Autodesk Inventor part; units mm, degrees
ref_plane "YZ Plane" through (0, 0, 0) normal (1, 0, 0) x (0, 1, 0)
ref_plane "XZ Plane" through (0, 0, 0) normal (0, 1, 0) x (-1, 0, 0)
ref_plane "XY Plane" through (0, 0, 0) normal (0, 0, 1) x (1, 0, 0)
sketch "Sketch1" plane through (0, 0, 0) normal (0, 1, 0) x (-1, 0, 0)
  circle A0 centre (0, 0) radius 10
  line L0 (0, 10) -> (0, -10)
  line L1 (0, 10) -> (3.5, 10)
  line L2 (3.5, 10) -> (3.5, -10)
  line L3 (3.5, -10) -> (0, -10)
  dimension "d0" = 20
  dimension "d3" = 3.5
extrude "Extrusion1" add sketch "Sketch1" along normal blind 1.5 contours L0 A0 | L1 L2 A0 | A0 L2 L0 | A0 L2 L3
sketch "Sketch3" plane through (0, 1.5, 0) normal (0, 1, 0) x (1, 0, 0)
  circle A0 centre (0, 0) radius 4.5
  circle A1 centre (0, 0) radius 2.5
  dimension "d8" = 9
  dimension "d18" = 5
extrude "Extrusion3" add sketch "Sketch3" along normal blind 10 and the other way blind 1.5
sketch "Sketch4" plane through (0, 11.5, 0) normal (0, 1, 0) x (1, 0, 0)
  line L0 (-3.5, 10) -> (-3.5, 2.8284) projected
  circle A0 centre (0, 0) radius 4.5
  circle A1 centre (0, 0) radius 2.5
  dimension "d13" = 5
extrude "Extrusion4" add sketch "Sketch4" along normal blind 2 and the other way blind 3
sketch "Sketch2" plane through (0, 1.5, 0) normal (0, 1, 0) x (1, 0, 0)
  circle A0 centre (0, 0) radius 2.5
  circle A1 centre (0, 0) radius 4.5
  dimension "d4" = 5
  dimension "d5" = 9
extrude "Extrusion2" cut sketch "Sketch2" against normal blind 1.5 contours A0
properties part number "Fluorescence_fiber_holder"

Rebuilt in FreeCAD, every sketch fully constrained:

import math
import FreeCAD as App
import Part
import Sketcher
from FreeCAD import Vector

doc = App.newDocument("Part")
params = doc.addObject("Spreadsheet::Sheet", "Params")
for row, (alias, value) in enumerate([
    ("sketch1_radius", "10 mm"),
    ("sketch1_width", "3.5 mm"),
    ("pad1_length", "1.5 mm"),
    ("sketch2_diameter", "9 mm"),
    ("sketch2_diameter2", "5 mm"),
    ("pad2_length", "10 mm"),
    ("pad2_length2", "1.5 mm"),
    ("sketch3_diameter", "5 mm"),
    ("sketch3_diameter2", "9 mm"),
    ("pad3_length", "2 mm"),
    ("pad3_length2", "3 mm"),
    ("sketch4_diameter", "5 mm"),
    ("pocket1_length", "1.5 mm"),
], start=1):
    params.set(f"A{row}", alias)
    params.set(f"B{row}", "=" + value)
    params.setAlias(f"B{row}", alias)

body = doc.addObject("PartDesign::Body", "Body")

sketch1 = body.newObject("Sketcher::SketchObject", "Sketch")
sketch1.AttachmentSupport = (doc.getObject("XZ_Plane"), [""])
sketch1.MapMode = "FlatFace"
sketch1.addGeometry(Part.ArcOfCircle(Part.Circle(Vector(0, 0, 0), Vector(0, 0, 1), 10), math.radians(-90), math.radians(90)), False)
sketch1.addGeometry(Part.LineSegment(Vector(0, -10, 0), Vector(-3.5, -10, 0)), False)
sketch1.addGeometry(Part.LineSegment(Vector(-3.5, -10, 0), Vector(-3.5, 10, 0)), False)
sketch1.addGeometry(Part.LineSegment(Vector(-3.5, 10, 0), Vector(0, 10, 0)), False)
sketch1.addConstraint(Sketcher.Constraint("Tangent", 0, 1, 1, 1))
sketch1.addConstraint(Sketcher.Constraint("Coincident", 1, 2, 2, 1))
sketch1.addConstraint(Sketcher.Constraint("Coincident", 2, 2, 3, 1))
sketch1.addConstraint(Sketcher.Constraint("Tangent", 3, 2, 0, 2))
sketch1.addConstraint(Sketcher.Constraint("Horizontal", 1))
sketch1.addConstraint(Sketcher.Constraint("Vertical", 2))
sketch1.addConstraint(Sketcher.Constraint("Horizontal", 3))
sketch1.addConstraint(Sketcher.Constraint("Coincident", 0, 3, -1, 1))
sketch1.addConstraint(Sketcher.Constraint("Radius", 0, 10.0))
sketch1.addConstraint(Sketcher.Constraint("DistanceX", 1, 2, 1, 1, 3.5))
sketch1.setExpression("Constraints[8]", "Params.sketch1_radius")
sketch1.setExpression("Constraints[9]", "Params.sketch1_width")
pad1 = body.newObject("PartDesign::Pad", "Pad")
pad1.Profile = sketch1
pad1.setExpression("Length", "Params.pad1_length")
pad1.Reversed = True

sketch2 = body.newObject("Sketcher::SketchObject", "Sketch001")
sketch2.AttachmentSupport = (doc.getObject("XZ_Plane"), [""])
sketch2.MapMode = "FlatFace"
sketch2.AttachmentOffset = App.Placement(Vector(0, 0, -1.5), App.Rotation())
sketch2.addGeometry(Part.Circle(Vector(0, 0, 0), Vector(0, 0, 1), 4.5), False)
sketch2.addGeometry(Part.Circle(Vector(0, 0, 0), Vector(0, 0, 1), 2.5), False)
sketch2.addConstraint(Sketcher.Constraint("Coincident", 0, 3, -1, 1))
sketch2.addConstraint(Sketcher.Constraint("Coincident", 1, 3, -1, 1))
sketch2.addConstraint(Sketcher.Constraint("Diameter", 0, 9.0))
sketch2.addConstraint(Sketcher.Constraint("Diameter", 1, 5.0))
sketch2.setExpression("Constraints[2]", "Params.sketch2_diameter")
sketch2.setExpression("Constraints[3]", "Params.sketch2_diameter2")
pad2 = body.newObject("PartDesign::Pad", "Pad001")
pad2.Profile = sketch2
pad2.Type = "TwoLengths"
pad2.setExpression("Length", "Params.pad2_length")
pad2.setExpression("Length2", "Params.pad2_length2")
pad2.Reversed = True

sketch3 = body.newObject("Sketcher::SketchObject", "Sketch002")
sketch3.AttachmentSupport = (doc.getObject("XZ_Plane"), [""])
sketch3.MapMode = "FlatFace"
sketch3.AttachmentOffset = App.Placement(Vector(0, 0, -11.5), App.Rotation())
sketch3.addGeometry(Part.Circle(Vector(0, 0, 0), Vector(0, 0, 1), 4.5), False)
sketch3.addGeometry(Part.Circle(Vector(0, 0, 0), Vector(0, 0, 1), 2.5), False)
sketch3.addConstraint(Sketcher.Constraint("Coincident", 0, 3, -1, 1))
sketch3.addConstraint(Sketcher.Constraint("Coincident", 1, 3, -1, 1))
sketch3.addConstraint(Sketcher.Constraint("Diameter", 1, 5.0))
sketch3.addConstraint(Sketcher.Constraint("Diameter", 0, 9.0))
sketch3.setExpression("Constraints[2]", "Params.sketch3_diameter")
sketch3.setExpression("Constraints[3]", "Params.sketch3_diameter2")
pad3 = body.newObject("PartDesign::Pad", "Pad002")
pad3.Profile = sketch3
pad3.Type = "TwoLengths"
pad3.setExpression("Length", "Params.pad3_length")
pad3.setExpression("Length2", "Params.pad3_length2")
pad3.Reversed = True

sketch4 = body.newObject("Sketcher::SketchObject", "Sketch003")
sketch4.AttachmentSupport = (doc.getObject("XZ_Plane"), [""])
sketch4.MapMode = "FlatFace"
sketch4.AttachmentOffset = App.Placement(Vector(0, 0, -1.5), App.Rotation())
sketch4.addGeometry(Part.Circle(Vector(0, 0, 0), Vector(0, 0, 1), 2.5), False)
sketch4.addConstraint(Sketcher.Constraint("Coincident", 0, 3, -1, 1))
sketch4.addConstraint(Sketcher.Constraint("Diameter", 0, 5.0))
sketch4.setExpression("Constraints[1]", "Params.sketch4_diameter")
pocket1 = body.newObject("PartDesign::Pocket", "Pocket")
pocket1.Profile = sketch4
pocket1.setExpression("Length", "Params.pocket1_length")
pocket1.Reversed = True

doc.recompute()
